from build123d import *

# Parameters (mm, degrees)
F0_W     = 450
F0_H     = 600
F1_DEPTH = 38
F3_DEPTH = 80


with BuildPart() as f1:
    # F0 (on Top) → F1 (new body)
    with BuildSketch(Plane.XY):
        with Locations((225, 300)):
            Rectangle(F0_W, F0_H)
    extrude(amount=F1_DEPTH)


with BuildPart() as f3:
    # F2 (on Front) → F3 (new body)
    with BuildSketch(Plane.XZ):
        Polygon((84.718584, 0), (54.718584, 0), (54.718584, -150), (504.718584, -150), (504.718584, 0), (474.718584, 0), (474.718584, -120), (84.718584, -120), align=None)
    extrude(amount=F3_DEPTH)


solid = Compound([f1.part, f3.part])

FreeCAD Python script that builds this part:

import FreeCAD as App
import Part
import Sketcher

V = App.Vector
Q = App.Units.Quantity


def add_polygon(sketch, points):
    """Adds a closed chain of lines whose ends are joined by coincident constraints."""
    first, n = sketch.GeometryCount, len(points)
    for a, b in zip(points, points[1:] + points[:1]):
        sketch.addGeometry(Part.LineSegment(App.Vector(*a, 0), App.Vector(*b, 0)), False)
    for i in range(n):
        sketch.addConstraint(Sketcher.Constraint("Coincident", first + i, 2, first + (i + 1) % n, 1))

doc = App.newDocument("Part")
body = doc.addObject("PartDesign::Body", "Body")

# Sketch on XY plane
sketch1 = body.newObject("Sketcher::SketchObject", "Sketch")
sketch1.AttachmentSupport = (doc.getObject("XY_Plane"), [""])
sketch1.MapMode = "FlatFace"
add_polygon(sketch1, [(0, 600), (0, 0), (450, 0), (450, 600)])  # lines 0-3
sketch1.addConstraint(Sketcher.Constraint("Vertical", 0))
sketch1.addConstraint(Sketcher.Constraint("Horizontal", 1))
sketch1.addConstraint(Sketcher.Constraint("Vertical", 2))
sketch1.addConstraint(Sketcher.Constraint("Horizontal", 3))
sketch1.addConstraint(Sketcher.Constraint("Coincident", 0, 2, -1, 1))
sketch1.addConstraint(Sketcher.Constraint("DistanceX", 1, 1, 1, 2, Q("450 mm")))
sketch1.addConstraint(Sketcher.Constraint("DistanceY", 0, 2, 0, 1, Q("600 mm")))
pad1 = body.newObject("PartDesign::Pad", "Pad")
pad1.Profile = sketch1
pad1.Length = 38
body2 = doc.addObject("PartDesign::Body", "Body001")

# Sketch on XZ plane
sketch2 = body2.newObject("Sketcher::SketchObject", "Sketch001")
sketch2.AttachmentSupport = (doc.getObject("XZ_Plane001"), [""])
sketch2.MapMode = "FlatFace"
add_polygon(sketch2, [(84.718584, 0), (54.718584, 0), (54.718584, -150), (504.718584, -150), (504.718584, 0), (474.718584, 0), (474.718584, -120), (84.718584, -120)])  # lines 0-7
sketch2.addConstraint(Sketcher.Constraint("Horizontal", 0))
sketch2.addConstraint(Sketcher.Constraint("Vertical", 1))
sketch2.addConstraint(Sketcher.Constraint("Horizontal", 2))
sketch2.addConstraint(Sketcher.Constraint("Vertical", 3))
sketch2.addConstraint(Sketcher.Constraint("Horizontal", 4))
sketch2.addConstraint(Sketcher.Constraint("Vertical", 5))
sketch2.addConstraint(Sketcher.Constraint("Horizontal", 6))
sketch2.addConstraint(Sketcher.Constraint("Vertical", 7))
sketch2.addConstraint(Sketcher.Constraint("PointOnObject", 0, 2, -1))
sketch2.addConstraint(Sketcher.Constraint("PointOnObject", 3, 2, -1))
sketch2.addConstraint(Sketcher.Constraint("Equal", 0, 4))
sketch2.addConstraint(Sketcher.Constraint("DistanceX", 0, 2, 0, 1, Q("30 mm")))
sketch2.addConstraint(Sketcher.Constraint("DistanceX", 2, 1, 2, 2, Q("450 mm")))
sketch2.addConstraint(Sketcher.Constraint("DistanceY", 1, 2, 1, 1, Q("150 mm")))
sketch2.addConstraint(Sketcher.Constraint("DistanceY", 5, 2, 5, 1, Q("120 mm")))
sketch2.addConstraint(Sketcher.Constraint("DistanceX", -1, 1, 0, 2, Q("54.718584 mm")))
pad2 = body2.newObject("PartDesign::Pad", "Pad001")
pad2.Profile = sketch2
pad2.Length = 80

doc.recompute()
